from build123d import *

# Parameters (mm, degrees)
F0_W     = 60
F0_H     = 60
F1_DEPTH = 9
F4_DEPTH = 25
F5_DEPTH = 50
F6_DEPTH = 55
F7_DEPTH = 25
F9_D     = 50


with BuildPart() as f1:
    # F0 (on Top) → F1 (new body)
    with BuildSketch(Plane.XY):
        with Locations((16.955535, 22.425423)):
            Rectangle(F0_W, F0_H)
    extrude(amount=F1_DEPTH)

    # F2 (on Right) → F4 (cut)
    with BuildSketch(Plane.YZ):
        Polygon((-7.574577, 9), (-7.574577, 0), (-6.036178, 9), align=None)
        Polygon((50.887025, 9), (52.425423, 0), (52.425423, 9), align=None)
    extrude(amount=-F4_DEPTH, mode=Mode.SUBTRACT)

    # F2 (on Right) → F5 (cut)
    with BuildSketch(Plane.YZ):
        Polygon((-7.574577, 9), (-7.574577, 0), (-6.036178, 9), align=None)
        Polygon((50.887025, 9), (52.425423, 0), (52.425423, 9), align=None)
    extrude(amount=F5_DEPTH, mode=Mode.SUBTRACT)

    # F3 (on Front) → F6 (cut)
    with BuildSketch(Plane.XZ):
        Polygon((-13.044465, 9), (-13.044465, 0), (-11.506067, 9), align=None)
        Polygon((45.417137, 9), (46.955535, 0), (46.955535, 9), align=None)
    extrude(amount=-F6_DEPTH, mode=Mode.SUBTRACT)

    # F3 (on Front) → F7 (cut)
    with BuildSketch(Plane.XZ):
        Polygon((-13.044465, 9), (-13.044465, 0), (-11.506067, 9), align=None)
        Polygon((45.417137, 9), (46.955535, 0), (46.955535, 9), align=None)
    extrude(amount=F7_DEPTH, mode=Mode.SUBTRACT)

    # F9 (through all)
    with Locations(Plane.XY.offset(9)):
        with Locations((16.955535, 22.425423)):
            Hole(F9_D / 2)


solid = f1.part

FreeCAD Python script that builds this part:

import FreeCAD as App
import Part
import Sketcher
Q = App.Units.Quantity

doc = App.newDocument("Part")
body = doc.addObject("PartDesign::Body", "Body")

sketch1 = body.newObject("Sketcher::SketchObject", "Sketch")
sketch1.AttachmentSupport = (doc.getObject("XY_Plane"), [""])
sketch1.MapMode = "FlatFace"
sketch1.addGeometry([
    Part.LineSegment(App.Vector(-13, 52, 0), App.Vector(-13, -8, 0)),
    Part.LineSegment(App.Vector(-13, -8, 0), App.Vector(47, -8, 0)),
    Part.LineSegment(App.Vector(47, -8, 0), App.Vector(47, 52, 0)),
    Part.LineSegment(App.Vector(47, 52, 0), App.Vector(-13, 52, 0)),
], False)
sketch1.addConstraint([
    Sketcher.Constraint("Coincident", 0, 2, 1, 1),
    Sketcher.Constraint("Coincident", 1, 2, 2, 1),
    Sketcher.Constraint("Coincident", 2, 2, 3, 1),
    Sketcher.Constraint("Coincident", 3, 2, 0, 1),
    Sketcher.Constraint("Vertical", 0),
    Sketcher.Constraint("Horizontal", 1),
    Sketcher.Constraint("Vertical", 2),
    Sketcher.Constraint("Horizontal", 3),
    Sketcher.Constraint("Equal", 3, 0),
    Sketcher.Constraint("DistanceX", 1, 1, 1, 2, 60.0),
    Sketcher.Constraint("DistanceX", 0, 2, -1, 1, 13.044465),
    Sketcher.Constraint("DistanceY", 0, 2, -1, 1, 7.574577),
])
pad1 = body.newObject("PartDesign::Pad", "Pad")
pad1.Profile = sketch1
pad1.Length = 9

sketch2 = body.newObject("Sketcher::SketchObject", "Sketch001")
sketch2.AttachmentSupport = (doc.getObject("YZ_Plane"), [""])
sketch2.MapMode = "FlatFace"
sketch2.addGeometry([
    Part.LineSegment(App.Vector(-7.6, 9, 0), App.Vector(-7.6, 0, 0)),
    Part.LineSegment(App.Vector(-7.6, 0, 0), App.Vector(-6, 9, 0)),
    Part.LineSegment(App.Vector(-6, 9, 0), App.Vector(-7.6, 9, 0)),
    Part.LineSegment(App.Vector(50.9, 9, 0), App.Vector(52.4, 0, 0)),
    Part.LineSegment(App.Vector(52.4, 0, 0), App.Vector(52.4, 9, 0)),
    Part.LineSegment(App.Vector(52.4, 9, 0), App.Vector(50.9, 9, 0)),
], False)
sketch2.addConstraint([
    Sketcher.Constraint("Coincident", 0, 2, 1, 1),
    Sketcher.Constraint("Coincident", 1, 2, 2, 1),
    Sketcher.Constraint("Coincident", 2, 2, 0, 1),
    Sketcher.Constraint("Coincident", 3, 2, 4, 1),
    Sketcher.Constraint("Coincident", 4, 2, 5, 1),
    Sketcher.Constraint("Coincident", 5, 2, 3, 1),
    Sketcher.Constraint("Vertical", 0),
    Sketcher.Constraint("Horizontal", 2),
    Sketcher.Constraint("Vertical", 4),
    Sketcher.Constraint("Horizontal", 5),
    Sketcher.Constraint("PointOnObject", 0, 2, -1),
    Sketcher.Constraint("PointOnObject", 3, 2, -1),
    Sketcher.Constraint("Horizontal", 2, 2, 4, 2),
    Sketcher.Constraint("Equal", 2, 5),
    Sketcher.Constraint("DistanceY", 0, 2, 0, 1, 9.0),
    Sketcher.Constraint("Angle", 1, Q("80.299995 deg")),
    Sketcher.Constraint("DistanceX", 0, 2, 3, 2, 60.0),
    Sketcher.Constraint("DistanceX", 0, 2, -1, 1, 7.574577),
])
pocket1 = body.newObject("PartDesign::Pocket", "Pocket")
pocket1.Profile = sketch2
pocket1.Length = 25

sketch3 = body.newObject("Sketcher::SketchObject", "Sketch002")
sketch3.AttachmentSupport = (doc.getObject("YZ_Plane"), [""])
sketch3.MapMode = "FlatFace"
sketch3.addGeometry([
    Part.LineSegment(App.Vector(-7.6, 9, 0), App.Vector(-7.6, 0, 0)),
    Part.LineSegment(App.Vector(-7.6, 0, 0), App.Vector(-6, 9, 0)),
    Part.LineSegment(App.Vector(-6, 9, 0), App.Vector(-7.6, 9, 0)),
    Part.LineSegment(App.Vector(50.9, 9, 0), App.Vector(52.4, 0, 0)),
    Part.LineSegment(App.Vector(52.4, 0, 0), App.Vector(52.4, 9, 0)),
    Part.LineSegment(App.Vector(52.4, 9, 0), App.Vector(50.9, 9, 0)),
], False)
sketch3.addConstraint([
    Sketcher.Constraint("Coincident", 0, 2, 1, 1),
    Sketcher.Constraint("Coincident", 1, 2, 2, 1),
    Sketcher.Constraint("Coincident", 2, 2, 0, 1),
    Sketcher.Constraint("Coincident", 3, 2, 4, 1),
    Sketcher.Constraint("Coincident", 4, 2, 5, 1),
    Sketcher.Constraint("Coincident", 5, 2, 3, 1),
    Sketcher.Constraint("Vertical", 0),
    Sketcher.Constraint("Horizontal", 2),
    Sketcher.Constraint("Vertical", 4),
    Sketcher.Constraint("Horizontal", 5),
    Sketcher.Constraint("PointOnObject", 0, 2, -1),
    Sketcher.Constraint("PointOnObject", 3, 2, -1),
    Sketcher.Constraint("Horizontal", 2, 2, 4, 2),
    Sketcher.Constraint("Equal", 2, 5),
    Sketcher.Constraint("DistanceY", 0, 2, 0, 1, 9.0),
    Sketcher.Constraint("Angle", 1, Q("80.299995 deg")),
    Sketcher.Constraint("DistanceX", 0, 2, 3, 2, 60.0),
    Sketcher.Constraint("DistanceX", 0, 2, -1, 1, 7.574577),
])
pocket2 = body.newObject("PartDesign::Pocket", "Pocket001")
pocket2.Profile = sketch3
pocket2.Length = 50
pocket2.Reversed = True

sketch4 = body.newObject("Sketcher::SketchObject", "Sketch003")
sketch4.AttachmentSupport = (doc.getObject("XZ_Plane"), [""])
sketch4.MapMode = "FlatFace"
sketch4.addGeometry([
    Part.LineSegment(App.Vector(-13, 9, 0), App.Vector(-13, 0, 0)),
    Part.LineSegment(App.Vector(-13, 0, 0), App.Vector(-11.5, 9, 0)),
    Part.LineSegment(App.Vector(-11.5, 9, 0), App.Vector(-13, 9, 0)),
    Part.LineSegment(App.Vector(45.4, 9, 0), App.Vector(47, 0, 0)),
    Part.LineSegment(App.Vector(47, 0, 0), App.Vector(47, 9, 0)),
    Part.LineSegment(App.Vector(47, 9, 0), App.Vector(45.4, 9, 0)),
], False)
sketch4.addConstraint([
    Sketcher.Constraint("Coincident", 0, 2, 1, 1),
    Sketcher.Constraint("Coincident", 1, 2, 2, 1),
    Sketcher.Constraint("Coincident", 2, 2, 0, 1),
    Sketcher.Constraint("Coincident", 3, 2, 4, 1),
    Sketcher.Constraint("Coincident", 4, 2, 5, 1),
    Sketcher.Constraint("Coincident", 5, 2, 3, 1),
    Sketcher.Constraint("Vertical", 0),
    Sketcher.Constraint("Horizontal", 2),
    Sketcher.Constraint("Vertical", 4),
    Sketcher.Constraint("Horizontal", 5),
    Sketcher.Constraint("PointOnObject", 0, 2, -1),
    Sketcher.Constraint("PointOnObject", 3, 2, -1),
    Sketcher.Constraint("Horizontal", 2, 2, 4, 2),
    Sketcher.Constraint("Equal", 2, 5),
    Sketcher.Constraint("DistanceY", 0, 2, 0, 1, 9.0),
    Sketcher.Constraint("Angle", 1, Q("80.300001 deg")),
    Sketcher.Constraint("DistanceX", 0, 2, 3, 2, 60.0),
    Sketcher.Constraint("DistanceX", 0, 2, -1, 1, 13.044465),
])
pocket3 = body.newObject("PartDesign::Pocket", "Pocket002")
pocket3.Profile = sketch4
pocket3.Length = 55

sketch5 = body.newObject("Sketcher::SketchObject", "Sketch004")
sketch5.AttachmentSupport = (doc.getObject("XZ_Plane"), [""])
sketch5.MapMode = "FlatFace"
sketch5.addGeometry([
    Part.LineSegment(App.Vector(-13, 9, 0), App.Vector(-13, 0, 0)),
    Part.LineSegment(App.Vector(-13, 0, 0), App.Vector(-11.5, 9, 0)),
    Part.LineSegment(App.Vector(-11.5, 9, 0), App.Vector(-13, 9, 0)),
    Part.LineSegment(App.Vector(45.4, 9, 0), App.Vector(47, 0, 0)),
    Part.LineSegment(App.Vector(47, 0, 0), App.Vector(47, 9, 0)),
    Part.LineSegment(App.Vector(47, 9, 0), App.Vector(45.4, 9, 0)),
], False)
sketch5.addConstraint([
    Sketcher.Constraint("Coincident", 0, 2, 1, 1),
    Sketcher.Constraint("Coincident", 1, 2, 2, 1),
    Sketcher.Constraint("Coincident", 2, 2, 0, 1),
    Sketcher.Constraint("Coincident", 3, 2, 4, 1),
    Sketcher.Constraint("Coincident", 4, 2, 5, 1),
    Sketcher.Constraint("Coincident", 5, 2, 3, 1),
    Sketcher.Constraint("Vertical", 0),
    Sketcher.Constraint("Horizontal", 2),
    Sketcher.Constraint("Vertical", 4),
    Sketcher.Constraint("Horizontal", 5),
    Sketcher.Constraint("PointOnObject", 0, 2, -1),
    Sketcher.Constraint("PointOnObject", 3, 2, -1),
    Sketcher.Constraint("Horizontal", 2, 2, 4, 2),
    Sketcher.Constraint("Equal", 2, 5),
    Sketcher.Constraint("DistanceY", 0, 2, 0, 1, 9.0),
    Sketcher.Constraint("Angle", 1, Q("80.300001 deg")),
    Sketcher.Constraint("DistanceX", 0, 2, 3, 2, 60.0),
    Sketcher.Constraint("DistanceX", 0, 2, -1, 1, 13.044465),
])
pocket4 = body.newObject("PartDesign::Pocket", "Pocket003")
pocket4.Profile = sketch5
pocket4.Length = 25
pocket4.Reversed = True

sketch6 = body.newObject("Sketcher::SketchObject", "Sketch005")
sketch6.AttachmentSupport = (doc.getObject("XY_Plane"), [""])
sketch6.MapMode = "FlatFace"
sketch6.AttachmentOffset = App.Placement(App.Vector(0, 0, 9), App.Rotation())
sketch6.addGeometry(Part.Circle(App.Vector(17, 22, 0), App.Vector(0, 0, 1), 25), False)
sketch6.addConstraint([
    Sketcher.Constraint("Diameter", 0, 50.0),
    Sketcher.Constraint("DistanceX", -1, 1, 0, 3, 16.955535),
    Sketcher.Constraint("DistanceY", -1, 1, 0, 3, 22.425423),
])
doc.recompute()
hole = body.newObject("PartDesign::Hole", "Hole")
hole.Profile = sketch6
hole.ThreadType = "None"
hole.Diameter = 50
hole.DepthType = "ThroughAll"

doc.recompute()
